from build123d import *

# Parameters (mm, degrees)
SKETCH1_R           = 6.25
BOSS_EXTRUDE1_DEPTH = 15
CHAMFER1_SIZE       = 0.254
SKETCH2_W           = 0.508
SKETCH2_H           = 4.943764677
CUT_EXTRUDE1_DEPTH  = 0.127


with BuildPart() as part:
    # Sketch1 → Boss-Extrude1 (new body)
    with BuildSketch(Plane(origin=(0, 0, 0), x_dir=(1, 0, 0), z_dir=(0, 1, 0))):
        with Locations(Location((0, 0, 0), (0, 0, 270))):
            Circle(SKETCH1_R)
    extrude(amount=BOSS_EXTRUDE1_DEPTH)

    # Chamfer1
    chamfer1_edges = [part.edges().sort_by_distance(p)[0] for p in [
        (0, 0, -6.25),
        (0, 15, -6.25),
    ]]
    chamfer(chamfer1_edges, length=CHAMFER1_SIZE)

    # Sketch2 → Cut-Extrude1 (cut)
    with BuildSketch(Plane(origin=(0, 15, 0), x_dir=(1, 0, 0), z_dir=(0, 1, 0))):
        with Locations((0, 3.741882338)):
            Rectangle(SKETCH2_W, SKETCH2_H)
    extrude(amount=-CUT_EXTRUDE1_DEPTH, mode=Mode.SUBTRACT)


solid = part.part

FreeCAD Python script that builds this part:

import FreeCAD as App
import Part
import Sketcher
from FreeCAD import Vector
Q = App.Units.Quantity


def edges_at(feature, points):
    """Names of the edges that pass closest to the given points."""
    edges = feature.Shape.Edges
    near = lambda p: min(range(len(edges)), key=lambda i: edges[i].distToShape(Part.Vertex(*p))[0])
    return sorted({f"Edge{near(p) + 1}" for p in points})

doc = App.newDocument("Part")
body = doc.addObject("PartDesign::Body", "Body")

# Sketch on XZ plane
sketch1 = body.newObject("Sketcher::SketchObject", "Sketch")
sketch1.AttachmentSupport = (doc.getObject("XZ_Plane"), [""])
sketch1.MapMode = "FlatFace"
sketch1.addGeometry(Part.Circle(Vector(0, 0, 0), Vector(0, 0, 1), 6), False)
sketch1.addConstraint([
    Sketcher.Constraint("Coincident", 0, 3, -1, 1),
    Sketcher.Constraint("Diameter", 0, Q("12.5 mm")),
])
pad1 = body.newObject("PartDesign::Pad", "Pad")
pad1.Profile = sketch1
pad1.Length = 15
pad1.Reversed = True
doc.recompute()

chamfer = body.newObject("PartDesign::Chamfer", "Chamfer")
chamfer.Base = (pad1, edges_at(pad1, [(0, 0, -6.25), (0, 15, -6.25)]))
chamfer.Size = Q("0.01 in")

# Sketch on XZ plane
sketch2 = body.newObject("Sketcher::SketchObject", "Sketch001")
sketch2.AttachmentSupport = (doc.getObject("XZ_Plane"), [""])
sketch2.MapMode = "FlatFace"
sketch2.AttachmentOffset = App.Placement(Vector(0, 0, -15), App.Rotation())
sketch2.addGeometry([
    Part.LineSegment(Vector(-0.3, -6.2, 0), Vector(-0.3, -1.3, 0)),
    Part.LineSegment(Vector(-0.3, -1.3, 0), Vector(0.3, -1.3, 0)),
    Part.LineSegment(Vector(0.3, -1.3, 0), Vector(0.3, -6.2, 0)),
    Part.LineSegment(Vector(0.3, -6.2, 0), Vector(-0.3, -6.2, 0)),
], False)
sketch2.addConstraint([
    Sketcher.Constraint("Coincident", 0, 2, 1, 1),
    Sketcher.Constraint("Coincident", 1, 2, 2, 1),
    Sketcher.Constraint("Coincident", 2, 2, 3, 1),
    Sketcher.Constraint("Coincident", 3, 2, 0, 1),
    Sketcher.Constraint("Vertical", 0),
    Sketcher.Constraint("Horizontal", 1),
    Sketcher.Constraint("Vertical", 2),
    Sketcher.Constraint("Horizontal", 3),
    Sketcher.Constraint("DistanceX", 1, 1, 1, 2, Q("0.02 in")),
    Sketcher.Constraint("DistanceX", 0, 2, -1, 1, Q("0.01 in")),
    Sketcher.Constraint("DistanceY", 0, 2, -1, 1, Q("0.05 in")),
    Sketcher.Constraint("DistanceY", 0, 1, 0, 2, Q("4.943765 mm")),
])
pocket1 = body.newObject("PartDesign::Pocket", "Pocket")
pocket1.Profile = sketch2
pocket1.Length = Q("0.005 in")
pocket1.Reversed = True

doc.recompute()
